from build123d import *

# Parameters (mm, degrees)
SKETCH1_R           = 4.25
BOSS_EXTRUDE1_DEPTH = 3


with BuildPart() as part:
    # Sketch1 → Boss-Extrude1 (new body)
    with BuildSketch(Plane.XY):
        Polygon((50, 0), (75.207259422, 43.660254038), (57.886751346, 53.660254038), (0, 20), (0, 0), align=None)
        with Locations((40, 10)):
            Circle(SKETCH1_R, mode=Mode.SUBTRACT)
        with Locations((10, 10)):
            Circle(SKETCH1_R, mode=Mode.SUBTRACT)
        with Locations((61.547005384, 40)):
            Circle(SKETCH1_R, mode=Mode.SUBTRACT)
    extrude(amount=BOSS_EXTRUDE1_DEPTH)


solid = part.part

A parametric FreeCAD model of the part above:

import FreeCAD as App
import Part
import Sketcher

V = App.Vector
Q = App.Units.Quantity

doc = App.newDocument("Part")
body = doc.addObject("PartDesign::Body", "Body")

# Sketch on XY plane
sketch1 = body.newObject("Sketcher::SketchObject", "Sketch")
sketch1.AttachmentSupport = (doc.getObject("XY_Plane"), [""])
sketch1.MapMode = "FlatFace"
sketch1.addGeometry(Part.LineSegment(V(50, 0, 0), V(75.207259, 43.660254, 0)), False)
sketch1.addGeometry(Part.LineSegment(V(75.207259, 43.660254, 0), V(57.886751, 53.660254, 0)), False)
sketch1.addGeometry(Part.LineSegment(V(57.886751, 53.660254, 0), V(0, 20, 0)), False)
sketch1.addGeometry(Part.LineSegment(V(0, 20, 0), V(0, 0, 0)), False)
sketch1.addGeometry(Part.LineSegment(V(0, 0, 0), V(50, 0, 0)), False)
sketch1.addGeometry(Part.Circle(V(10, 10, 0), V(0, 0, 1), 4.25), False)
sketch1.addGeometry(Part.Circle(V(40, 10, 0), V(0, 0, 1), 4.25), False)
sketch1.addGeometry(Part.Circle(V(61.547005, 40, 0), V(0, 0, 1), 4.25), False)
sketch1.addConstraint(Sketcher.Constraint("Coincident", 0, 2, 1, 1))
sketch1.addConstraint(Sketcher.Constraint("Coincident", 1, 2, 2, 1))
sketch1.addConstraint(Sketcher.Constraint("Coincident", 2, 2, 3, 1))
sketch1.addConstraint(Sketcher.Constraint("Coincident", 3, 2, 4, 1))
sketch1.addConstraint(Sketcher.Constraint("Coincident", 4, 2, 0, 1))
sketch1.addConstraint(Sketcher.Constraint("Vertical", 3))
sketch1.addConstraint(Sketcher.Constraint("Horizontal", 4))
sketch1.addConstraint(Sketcher.Constraint("Coincident", 3, 2, -1, 1))
sketch1.addConstraint(Sketcher.Constraint("Equal", 5, 6))
sketch1.addConstraint(Sketcher.Constraint("Equal", 6, 7))
sketch1.addConstraint(Sketcher.Constraint("Perpendicular", 0, 1))
sketch1.addConstraint(Sketcher.Constraint("Horizontal", 5, 3, 6, 3))
sketch1.addConstraint(Sketcher.Constraint("Diameter", 5, 8.5))
sketch1.addConstraint(Sketcher.Constraint("DistanceX", 4, 1, 4, 2, 50.0))
sketch1.addConstraint(Sketcher.Constraint("DistanceY", 3, 2, 3, 1, 20.0))
sketch1.addConstraint(Sketcher.Constraint("Angle", 0, Q("60 deg")))
sketch1.addConstraint(Sketcher.Constraint("Distance", 1, 20.0))
sketch1.addConstraint(Sketcher.Constraint("DistanceX", -1, 1, 5, 3, 10.0))
sketch1.addConstraint(Sketcher.Constraint("DistanceY", -1, 1, 5, 3, 10.0))
sketch1.addConstraint(Sketcher.Constraint("DistanceX", -1, 1, 6, 3, 40.0))
sketch1.addConstraint(Sketcher.Constraint("DistanceY", -1, 1, 7, 3, 40.0))
sketch1.addConstraint(Sketcher.Constraint("Distance", 0, 50.414519))
sketch1.addConstraint(Sketcher.Constraint("DistanceX", -1, 1, 7, 3, 61.547005))
pad1 = body.newObject("PartDesign::Pad", "Pad")
pad1.Profile = sketch1
pad1.Length = 3

doc.recompute()
